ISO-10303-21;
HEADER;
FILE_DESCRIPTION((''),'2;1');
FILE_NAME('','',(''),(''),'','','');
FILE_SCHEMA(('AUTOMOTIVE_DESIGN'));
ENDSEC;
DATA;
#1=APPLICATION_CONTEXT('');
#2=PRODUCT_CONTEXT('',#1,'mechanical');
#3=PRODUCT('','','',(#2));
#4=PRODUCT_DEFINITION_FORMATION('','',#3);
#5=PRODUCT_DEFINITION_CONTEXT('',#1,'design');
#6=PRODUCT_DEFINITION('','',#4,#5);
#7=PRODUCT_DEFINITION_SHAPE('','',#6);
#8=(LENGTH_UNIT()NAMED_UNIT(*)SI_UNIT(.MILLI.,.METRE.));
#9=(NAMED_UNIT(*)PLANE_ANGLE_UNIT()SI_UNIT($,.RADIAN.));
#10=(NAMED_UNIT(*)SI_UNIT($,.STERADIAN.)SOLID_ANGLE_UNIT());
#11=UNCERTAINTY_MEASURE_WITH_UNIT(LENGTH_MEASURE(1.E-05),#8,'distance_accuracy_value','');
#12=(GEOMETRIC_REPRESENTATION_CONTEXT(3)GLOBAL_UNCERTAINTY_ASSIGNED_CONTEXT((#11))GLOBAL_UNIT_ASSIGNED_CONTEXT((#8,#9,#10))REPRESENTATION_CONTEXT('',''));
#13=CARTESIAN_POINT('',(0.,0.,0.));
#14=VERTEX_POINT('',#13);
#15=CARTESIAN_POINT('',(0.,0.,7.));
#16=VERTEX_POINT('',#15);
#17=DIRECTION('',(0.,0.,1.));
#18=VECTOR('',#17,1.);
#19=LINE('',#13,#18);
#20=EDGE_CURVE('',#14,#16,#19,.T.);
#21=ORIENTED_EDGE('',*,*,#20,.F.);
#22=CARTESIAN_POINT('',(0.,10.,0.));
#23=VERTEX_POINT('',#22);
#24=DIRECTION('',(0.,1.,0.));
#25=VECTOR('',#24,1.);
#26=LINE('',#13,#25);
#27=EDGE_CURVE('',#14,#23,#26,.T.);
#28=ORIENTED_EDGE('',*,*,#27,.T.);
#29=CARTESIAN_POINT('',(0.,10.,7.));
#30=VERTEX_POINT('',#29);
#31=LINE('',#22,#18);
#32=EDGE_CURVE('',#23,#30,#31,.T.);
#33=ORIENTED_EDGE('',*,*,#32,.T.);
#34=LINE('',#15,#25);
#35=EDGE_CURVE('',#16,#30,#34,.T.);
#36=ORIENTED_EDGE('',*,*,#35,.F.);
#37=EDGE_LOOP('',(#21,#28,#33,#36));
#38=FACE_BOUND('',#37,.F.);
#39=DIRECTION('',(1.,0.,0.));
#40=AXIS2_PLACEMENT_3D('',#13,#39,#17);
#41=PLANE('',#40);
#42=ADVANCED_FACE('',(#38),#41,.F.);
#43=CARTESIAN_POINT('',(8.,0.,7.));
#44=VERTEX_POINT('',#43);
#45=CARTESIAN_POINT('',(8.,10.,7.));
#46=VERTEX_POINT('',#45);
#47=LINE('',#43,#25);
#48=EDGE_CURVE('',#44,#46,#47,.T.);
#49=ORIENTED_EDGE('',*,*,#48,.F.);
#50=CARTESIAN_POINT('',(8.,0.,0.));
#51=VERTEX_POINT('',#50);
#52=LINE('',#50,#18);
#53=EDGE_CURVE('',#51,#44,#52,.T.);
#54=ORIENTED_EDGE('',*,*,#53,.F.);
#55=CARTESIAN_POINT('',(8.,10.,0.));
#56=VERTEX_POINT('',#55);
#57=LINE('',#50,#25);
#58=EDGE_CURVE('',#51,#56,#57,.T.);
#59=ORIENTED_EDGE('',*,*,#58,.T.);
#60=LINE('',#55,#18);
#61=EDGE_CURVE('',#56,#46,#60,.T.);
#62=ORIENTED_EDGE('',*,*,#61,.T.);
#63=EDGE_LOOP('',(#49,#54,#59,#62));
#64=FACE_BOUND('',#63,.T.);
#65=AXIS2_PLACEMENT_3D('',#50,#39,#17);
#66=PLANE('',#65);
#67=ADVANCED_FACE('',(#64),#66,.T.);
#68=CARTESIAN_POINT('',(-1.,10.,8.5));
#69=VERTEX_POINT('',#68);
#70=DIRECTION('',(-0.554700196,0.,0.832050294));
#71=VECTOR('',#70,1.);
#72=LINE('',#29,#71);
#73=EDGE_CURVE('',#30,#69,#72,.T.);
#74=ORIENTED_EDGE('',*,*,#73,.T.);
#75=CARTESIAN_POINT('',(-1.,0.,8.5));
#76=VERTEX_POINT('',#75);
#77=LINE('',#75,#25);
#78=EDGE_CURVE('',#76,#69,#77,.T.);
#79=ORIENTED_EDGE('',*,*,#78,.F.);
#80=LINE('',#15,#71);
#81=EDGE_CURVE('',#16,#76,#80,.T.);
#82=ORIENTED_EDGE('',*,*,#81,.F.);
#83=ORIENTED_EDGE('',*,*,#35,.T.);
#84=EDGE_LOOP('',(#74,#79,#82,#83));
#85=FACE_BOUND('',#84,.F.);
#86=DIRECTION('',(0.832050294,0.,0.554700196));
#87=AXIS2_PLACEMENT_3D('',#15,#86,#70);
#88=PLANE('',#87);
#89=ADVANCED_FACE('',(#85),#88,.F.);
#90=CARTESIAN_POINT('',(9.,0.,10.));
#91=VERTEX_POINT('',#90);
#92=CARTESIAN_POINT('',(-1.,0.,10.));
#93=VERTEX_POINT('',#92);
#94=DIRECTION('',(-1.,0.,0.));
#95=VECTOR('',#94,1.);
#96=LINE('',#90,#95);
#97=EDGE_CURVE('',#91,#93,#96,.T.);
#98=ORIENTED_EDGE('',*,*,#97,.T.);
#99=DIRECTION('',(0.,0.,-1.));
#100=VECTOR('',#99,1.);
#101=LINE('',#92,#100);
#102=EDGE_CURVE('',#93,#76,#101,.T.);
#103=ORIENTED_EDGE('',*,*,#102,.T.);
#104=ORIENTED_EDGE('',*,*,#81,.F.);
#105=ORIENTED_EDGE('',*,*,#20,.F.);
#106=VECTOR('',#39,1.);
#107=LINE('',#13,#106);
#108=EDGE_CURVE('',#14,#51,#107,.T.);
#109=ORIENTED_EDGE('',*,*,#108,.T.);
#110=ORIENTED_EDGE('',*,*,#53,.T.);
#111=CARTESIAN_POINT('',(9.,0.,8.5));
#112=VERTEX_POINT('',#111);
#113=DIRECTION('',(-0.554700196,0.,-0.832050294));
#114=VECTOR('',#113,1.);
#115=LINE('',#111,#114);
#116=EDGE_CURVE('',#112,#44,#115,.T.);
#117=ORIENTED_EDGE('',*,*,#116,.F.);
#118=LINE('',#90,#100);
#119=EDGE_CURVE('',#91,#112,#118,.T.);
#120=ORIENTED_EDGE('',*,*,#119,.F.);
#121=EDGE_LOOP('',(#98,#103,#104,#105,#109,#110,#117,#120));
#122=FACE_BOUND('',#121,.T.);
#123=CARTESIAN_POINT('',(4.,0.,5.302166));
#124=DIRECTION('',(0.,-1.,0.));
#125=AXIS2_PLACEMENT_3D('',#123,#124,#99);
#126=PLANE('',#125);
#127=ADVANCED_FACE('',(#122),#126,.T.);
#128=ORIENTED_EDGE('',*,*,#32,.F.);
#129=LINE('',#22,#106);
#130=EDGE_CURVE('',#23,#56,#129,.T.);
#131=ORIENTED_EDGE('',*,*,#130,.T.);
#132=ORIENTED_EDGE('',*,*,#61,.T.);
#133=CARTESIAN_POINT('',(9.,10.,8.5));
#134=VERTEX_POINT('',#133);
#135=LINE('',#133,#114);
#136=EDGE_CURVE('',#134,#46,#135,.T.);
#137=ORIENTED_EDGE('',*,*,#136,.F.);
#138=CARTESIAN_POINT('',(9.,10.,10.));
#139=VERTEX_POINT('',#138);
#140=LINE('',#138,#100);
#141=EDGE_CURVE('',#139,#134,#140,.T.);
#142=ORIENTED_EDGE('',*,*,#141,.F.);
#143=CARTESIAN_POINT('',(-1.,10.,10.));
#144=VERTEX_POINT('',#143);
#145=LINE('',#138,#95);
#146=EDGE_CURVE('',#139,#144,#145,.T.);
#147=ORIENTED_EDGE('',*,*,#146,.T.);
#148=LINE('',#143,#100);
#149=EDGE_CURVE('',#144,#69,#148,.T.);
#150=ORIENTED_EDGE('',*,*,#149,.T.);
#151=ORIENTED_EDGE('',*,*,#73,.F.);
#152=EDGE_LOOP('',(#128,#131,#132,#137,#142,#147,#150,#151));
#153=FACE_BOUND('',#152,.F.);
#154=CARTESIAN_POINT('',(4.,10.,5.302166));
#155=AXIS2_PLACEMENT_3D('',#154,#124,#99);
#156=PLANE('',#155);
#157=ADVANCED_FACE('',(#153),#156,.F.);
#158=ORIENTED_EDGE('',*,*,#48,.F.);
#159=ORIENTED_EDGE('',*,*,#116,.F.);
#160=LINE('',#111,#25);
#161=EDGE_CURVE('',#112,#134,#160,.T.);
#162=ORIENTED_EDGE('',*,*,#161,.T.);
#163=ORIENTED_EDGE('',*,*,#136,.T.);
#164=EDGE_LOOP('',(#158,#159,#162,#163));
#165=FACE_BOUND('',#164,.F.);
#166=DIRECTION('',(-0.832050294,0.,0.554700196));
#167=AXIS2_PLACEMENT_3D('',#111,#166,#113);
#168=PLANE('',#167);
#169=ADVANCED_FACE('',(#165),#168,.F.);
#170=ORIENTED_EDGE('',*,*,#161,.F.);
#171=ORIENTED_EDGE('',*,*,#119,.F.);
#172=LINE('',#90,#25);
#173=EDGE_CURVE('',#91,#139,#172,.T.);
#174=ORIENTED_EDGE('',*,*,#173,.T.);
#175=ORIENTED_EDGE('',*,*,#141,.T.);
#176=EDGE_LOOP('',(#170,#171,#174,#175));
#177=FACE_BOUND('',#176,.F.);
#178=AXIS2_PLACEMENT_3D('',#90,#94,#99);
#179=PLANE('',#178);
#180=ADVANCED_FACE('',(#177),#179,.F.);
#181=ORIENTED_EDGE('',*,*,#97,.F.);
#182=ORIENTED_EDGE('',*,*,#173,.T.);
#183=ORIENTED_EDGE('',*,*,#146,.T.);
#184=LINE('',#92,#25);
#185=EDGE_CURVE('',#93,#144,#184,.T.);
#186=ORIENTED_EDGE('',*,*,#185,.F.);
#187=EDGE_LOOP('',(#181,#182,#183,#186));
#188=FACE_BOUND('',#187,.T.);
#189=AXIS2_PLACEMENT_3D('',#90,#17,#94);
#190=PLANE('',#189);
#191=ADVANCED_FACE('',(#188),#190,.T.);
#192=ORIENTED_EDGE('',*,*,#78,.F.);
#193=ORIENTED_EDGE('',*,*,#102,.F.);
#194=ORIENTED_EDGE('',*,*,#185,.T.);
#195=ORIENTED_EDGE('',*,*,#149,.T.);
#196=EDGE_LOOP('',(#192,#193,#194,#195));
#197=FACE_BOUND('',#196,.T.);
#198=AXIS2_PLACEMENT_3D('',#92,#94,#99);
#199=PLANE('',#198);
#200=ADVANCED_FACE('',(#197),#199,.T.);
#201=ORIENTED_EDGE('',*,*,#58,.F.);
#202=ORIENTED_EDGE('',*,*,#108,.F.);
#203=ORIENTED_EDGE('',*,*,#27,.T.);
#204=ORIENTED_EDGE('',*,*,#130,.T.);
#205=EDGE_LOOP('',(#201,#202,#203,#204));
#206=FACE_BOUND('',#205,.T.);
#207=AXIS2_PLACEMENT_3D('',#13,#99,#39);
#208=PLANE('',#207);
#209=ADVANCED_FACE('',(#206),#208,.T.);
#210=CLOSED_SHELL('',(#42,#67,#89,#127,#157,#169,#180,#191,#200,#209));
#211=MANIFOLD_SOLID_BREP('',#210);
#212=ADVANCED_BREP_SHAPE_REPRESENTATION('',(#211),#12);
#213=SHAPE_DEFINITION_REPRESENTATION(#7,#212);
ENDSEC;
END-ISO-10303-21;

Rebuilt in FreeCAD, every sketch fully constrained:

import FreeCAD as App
import Part
import Sketcher

V = App.Vector
Q = App.Units.Quantity

doc = App.newDocument("Part")
params = doc.addObject("Spreadsheet::Sheet", "Params")
for row, (alias, value) in enumerate([
    ("sketch1_width", "10 mm"),
    ("sketch1_width2", "8 mm"),
    ("sketch1_height", "7 mm"),
    ("sketch1_height2", "1.5 mm"),
    ("pad1_length", "10 mm"),
], start=1):
    params.set(f"A{row}", alias)
    params.set(f"B{row}", "=" + value)
    params.setAlias(f"B{row}", alias)

body = doc.addObject("PartDesign::Body", "Body")

sketch1 = doc.addObject("Sketcher::SketchObject", "Sketch")
body.addObject(sketch1)
sketch1.AttachmentSupport = (doc.XZ_Plane, [""])
sketch1.MapMode = "FlatFace"
sketch1.addGeometry(Part.LineSegment(V(9, 8.5, 0), V(9, 10, 0)), False)
sketch1.addGeometry(Part.LineSegment(V(9, 10, 0), V(-1, 10, 0)), False)
sketch1.addGeometry(Part.LineSegment(V(-1, 10, 0), V(-1, 8.5, 0)), False)
sketch1.addGeometry(Part.LineSegment(V(-1, 8.5, 0), V(0, 7, 0)), False)
sketch1.addGeometry(Part.LineSegment(V(0, 7, 0), V(0, 0, 0)), False)
sketch1.addGeometry(Part.LineSegment(V(0, 0, 0), V(8, 0, 0)), False)
sketch1.addGeometry(Part.LineSegment(V(8, 0, 0), V(8, 7, 0)), False)
sketch1.addGeometry(Part.LineSegment(V(8, 7, 0), V(9, 8.5, 0)), False)
sketch1.addConstraint(Sketcher.Constraint("Coincident", 0, 2, 1, 1))
sketch1.addConstraint(Sketcher.Constraint("Coincident", 1, 2, 2, 1))
sketch1.addConstraint(Sketcher.Constraint("Coincident", 2, 2, 3, 1))
sketch1.addConstraint(Sketcher.Constraint("Coincident", 3, 2, 4, 1))
sketch1.addConstraint(Sketcher.Constraint("Coincident", 4, 2, 5, 1))
sketch1.addConstraint(Sketcher.Constraint("Coincident", 5, 2, 6, 1))
sketch1.addConstraint(Sketcher.Constraint("Coincident", 6, 2, 7, 1))
sketch1.addConstraint(Sketcher.Constraint("Coincident", 7, 2, 0, 1))
sketch1.addConstraint(Sketcher.Constraint("Vertical", 0))
sketch1.addConstraint(Sketcher.Constraint("Horizontal", 1))
sketch1.addConstraint(Sketcher.Constraint("Vertical", 2))
sketch1.addConstraint(Sketcher.Constraint("Vertical", 4))
sketch1.addConstraint(Sketcher.Constraint("Horizontal", 5))
sketch1.addConstraint(Sketcher.Constraint("Vertical", 6))
sketch1.addConstraint(Sketcher.Constraint("Coincident", 4, 2, -1, 1))
sketch1.addConstraint(Sketcher.Constraint("Horizontal", 3, 2, 6, 2))
sketch1.addConstraint(Sketcher.Constraint("Horizontal", 2, 2, 7, 2))
sketch1.addConstraint(Sketcher.Constraint("Equal", 3, 7))
sketch1.addConstraint(Sketcher.Constraint("DistanceX", 1, 2, 1, 1, Q("10 mm")))
sketch1.addConstraint(Sketcher.Constraint("DistanceX", 5, 1, 5, 2, Q("8 mm")))
sketch1.addConstraint(Sketcher.Constraint("DistanceY", 4, 2, 4, 1, Q("7 mm")))
sketch1.addConstraint(Sketcher.Constraint("DistanceY", 0, 1, 0, 2, Q("1.5 mm")))
sketch1.addConstraint(Sketcher.Constraint("DistanceY", -1, 1, 0, 2, Q("10 mm")))
sketch1.setExpression("Constraints[18]", "Params.sketch1_width")
sketch1.setExpression("Constraints[19]", "Params.sketch1_width2")
sketch1.setExpression("Constraints[20]", "Params.sketch1_height")
sketch1.setExpression("Constraints[21]", "Params.sketch1_height2")
pad1 = doc.addObject("PartDesign::Pad", "Pad")
body.addObject(pad1)
pad1.Profile = sketch1
pad1.setExpression("Length", "Params.pad1_length")
pad1.Reversed = True

doc.recompute()
